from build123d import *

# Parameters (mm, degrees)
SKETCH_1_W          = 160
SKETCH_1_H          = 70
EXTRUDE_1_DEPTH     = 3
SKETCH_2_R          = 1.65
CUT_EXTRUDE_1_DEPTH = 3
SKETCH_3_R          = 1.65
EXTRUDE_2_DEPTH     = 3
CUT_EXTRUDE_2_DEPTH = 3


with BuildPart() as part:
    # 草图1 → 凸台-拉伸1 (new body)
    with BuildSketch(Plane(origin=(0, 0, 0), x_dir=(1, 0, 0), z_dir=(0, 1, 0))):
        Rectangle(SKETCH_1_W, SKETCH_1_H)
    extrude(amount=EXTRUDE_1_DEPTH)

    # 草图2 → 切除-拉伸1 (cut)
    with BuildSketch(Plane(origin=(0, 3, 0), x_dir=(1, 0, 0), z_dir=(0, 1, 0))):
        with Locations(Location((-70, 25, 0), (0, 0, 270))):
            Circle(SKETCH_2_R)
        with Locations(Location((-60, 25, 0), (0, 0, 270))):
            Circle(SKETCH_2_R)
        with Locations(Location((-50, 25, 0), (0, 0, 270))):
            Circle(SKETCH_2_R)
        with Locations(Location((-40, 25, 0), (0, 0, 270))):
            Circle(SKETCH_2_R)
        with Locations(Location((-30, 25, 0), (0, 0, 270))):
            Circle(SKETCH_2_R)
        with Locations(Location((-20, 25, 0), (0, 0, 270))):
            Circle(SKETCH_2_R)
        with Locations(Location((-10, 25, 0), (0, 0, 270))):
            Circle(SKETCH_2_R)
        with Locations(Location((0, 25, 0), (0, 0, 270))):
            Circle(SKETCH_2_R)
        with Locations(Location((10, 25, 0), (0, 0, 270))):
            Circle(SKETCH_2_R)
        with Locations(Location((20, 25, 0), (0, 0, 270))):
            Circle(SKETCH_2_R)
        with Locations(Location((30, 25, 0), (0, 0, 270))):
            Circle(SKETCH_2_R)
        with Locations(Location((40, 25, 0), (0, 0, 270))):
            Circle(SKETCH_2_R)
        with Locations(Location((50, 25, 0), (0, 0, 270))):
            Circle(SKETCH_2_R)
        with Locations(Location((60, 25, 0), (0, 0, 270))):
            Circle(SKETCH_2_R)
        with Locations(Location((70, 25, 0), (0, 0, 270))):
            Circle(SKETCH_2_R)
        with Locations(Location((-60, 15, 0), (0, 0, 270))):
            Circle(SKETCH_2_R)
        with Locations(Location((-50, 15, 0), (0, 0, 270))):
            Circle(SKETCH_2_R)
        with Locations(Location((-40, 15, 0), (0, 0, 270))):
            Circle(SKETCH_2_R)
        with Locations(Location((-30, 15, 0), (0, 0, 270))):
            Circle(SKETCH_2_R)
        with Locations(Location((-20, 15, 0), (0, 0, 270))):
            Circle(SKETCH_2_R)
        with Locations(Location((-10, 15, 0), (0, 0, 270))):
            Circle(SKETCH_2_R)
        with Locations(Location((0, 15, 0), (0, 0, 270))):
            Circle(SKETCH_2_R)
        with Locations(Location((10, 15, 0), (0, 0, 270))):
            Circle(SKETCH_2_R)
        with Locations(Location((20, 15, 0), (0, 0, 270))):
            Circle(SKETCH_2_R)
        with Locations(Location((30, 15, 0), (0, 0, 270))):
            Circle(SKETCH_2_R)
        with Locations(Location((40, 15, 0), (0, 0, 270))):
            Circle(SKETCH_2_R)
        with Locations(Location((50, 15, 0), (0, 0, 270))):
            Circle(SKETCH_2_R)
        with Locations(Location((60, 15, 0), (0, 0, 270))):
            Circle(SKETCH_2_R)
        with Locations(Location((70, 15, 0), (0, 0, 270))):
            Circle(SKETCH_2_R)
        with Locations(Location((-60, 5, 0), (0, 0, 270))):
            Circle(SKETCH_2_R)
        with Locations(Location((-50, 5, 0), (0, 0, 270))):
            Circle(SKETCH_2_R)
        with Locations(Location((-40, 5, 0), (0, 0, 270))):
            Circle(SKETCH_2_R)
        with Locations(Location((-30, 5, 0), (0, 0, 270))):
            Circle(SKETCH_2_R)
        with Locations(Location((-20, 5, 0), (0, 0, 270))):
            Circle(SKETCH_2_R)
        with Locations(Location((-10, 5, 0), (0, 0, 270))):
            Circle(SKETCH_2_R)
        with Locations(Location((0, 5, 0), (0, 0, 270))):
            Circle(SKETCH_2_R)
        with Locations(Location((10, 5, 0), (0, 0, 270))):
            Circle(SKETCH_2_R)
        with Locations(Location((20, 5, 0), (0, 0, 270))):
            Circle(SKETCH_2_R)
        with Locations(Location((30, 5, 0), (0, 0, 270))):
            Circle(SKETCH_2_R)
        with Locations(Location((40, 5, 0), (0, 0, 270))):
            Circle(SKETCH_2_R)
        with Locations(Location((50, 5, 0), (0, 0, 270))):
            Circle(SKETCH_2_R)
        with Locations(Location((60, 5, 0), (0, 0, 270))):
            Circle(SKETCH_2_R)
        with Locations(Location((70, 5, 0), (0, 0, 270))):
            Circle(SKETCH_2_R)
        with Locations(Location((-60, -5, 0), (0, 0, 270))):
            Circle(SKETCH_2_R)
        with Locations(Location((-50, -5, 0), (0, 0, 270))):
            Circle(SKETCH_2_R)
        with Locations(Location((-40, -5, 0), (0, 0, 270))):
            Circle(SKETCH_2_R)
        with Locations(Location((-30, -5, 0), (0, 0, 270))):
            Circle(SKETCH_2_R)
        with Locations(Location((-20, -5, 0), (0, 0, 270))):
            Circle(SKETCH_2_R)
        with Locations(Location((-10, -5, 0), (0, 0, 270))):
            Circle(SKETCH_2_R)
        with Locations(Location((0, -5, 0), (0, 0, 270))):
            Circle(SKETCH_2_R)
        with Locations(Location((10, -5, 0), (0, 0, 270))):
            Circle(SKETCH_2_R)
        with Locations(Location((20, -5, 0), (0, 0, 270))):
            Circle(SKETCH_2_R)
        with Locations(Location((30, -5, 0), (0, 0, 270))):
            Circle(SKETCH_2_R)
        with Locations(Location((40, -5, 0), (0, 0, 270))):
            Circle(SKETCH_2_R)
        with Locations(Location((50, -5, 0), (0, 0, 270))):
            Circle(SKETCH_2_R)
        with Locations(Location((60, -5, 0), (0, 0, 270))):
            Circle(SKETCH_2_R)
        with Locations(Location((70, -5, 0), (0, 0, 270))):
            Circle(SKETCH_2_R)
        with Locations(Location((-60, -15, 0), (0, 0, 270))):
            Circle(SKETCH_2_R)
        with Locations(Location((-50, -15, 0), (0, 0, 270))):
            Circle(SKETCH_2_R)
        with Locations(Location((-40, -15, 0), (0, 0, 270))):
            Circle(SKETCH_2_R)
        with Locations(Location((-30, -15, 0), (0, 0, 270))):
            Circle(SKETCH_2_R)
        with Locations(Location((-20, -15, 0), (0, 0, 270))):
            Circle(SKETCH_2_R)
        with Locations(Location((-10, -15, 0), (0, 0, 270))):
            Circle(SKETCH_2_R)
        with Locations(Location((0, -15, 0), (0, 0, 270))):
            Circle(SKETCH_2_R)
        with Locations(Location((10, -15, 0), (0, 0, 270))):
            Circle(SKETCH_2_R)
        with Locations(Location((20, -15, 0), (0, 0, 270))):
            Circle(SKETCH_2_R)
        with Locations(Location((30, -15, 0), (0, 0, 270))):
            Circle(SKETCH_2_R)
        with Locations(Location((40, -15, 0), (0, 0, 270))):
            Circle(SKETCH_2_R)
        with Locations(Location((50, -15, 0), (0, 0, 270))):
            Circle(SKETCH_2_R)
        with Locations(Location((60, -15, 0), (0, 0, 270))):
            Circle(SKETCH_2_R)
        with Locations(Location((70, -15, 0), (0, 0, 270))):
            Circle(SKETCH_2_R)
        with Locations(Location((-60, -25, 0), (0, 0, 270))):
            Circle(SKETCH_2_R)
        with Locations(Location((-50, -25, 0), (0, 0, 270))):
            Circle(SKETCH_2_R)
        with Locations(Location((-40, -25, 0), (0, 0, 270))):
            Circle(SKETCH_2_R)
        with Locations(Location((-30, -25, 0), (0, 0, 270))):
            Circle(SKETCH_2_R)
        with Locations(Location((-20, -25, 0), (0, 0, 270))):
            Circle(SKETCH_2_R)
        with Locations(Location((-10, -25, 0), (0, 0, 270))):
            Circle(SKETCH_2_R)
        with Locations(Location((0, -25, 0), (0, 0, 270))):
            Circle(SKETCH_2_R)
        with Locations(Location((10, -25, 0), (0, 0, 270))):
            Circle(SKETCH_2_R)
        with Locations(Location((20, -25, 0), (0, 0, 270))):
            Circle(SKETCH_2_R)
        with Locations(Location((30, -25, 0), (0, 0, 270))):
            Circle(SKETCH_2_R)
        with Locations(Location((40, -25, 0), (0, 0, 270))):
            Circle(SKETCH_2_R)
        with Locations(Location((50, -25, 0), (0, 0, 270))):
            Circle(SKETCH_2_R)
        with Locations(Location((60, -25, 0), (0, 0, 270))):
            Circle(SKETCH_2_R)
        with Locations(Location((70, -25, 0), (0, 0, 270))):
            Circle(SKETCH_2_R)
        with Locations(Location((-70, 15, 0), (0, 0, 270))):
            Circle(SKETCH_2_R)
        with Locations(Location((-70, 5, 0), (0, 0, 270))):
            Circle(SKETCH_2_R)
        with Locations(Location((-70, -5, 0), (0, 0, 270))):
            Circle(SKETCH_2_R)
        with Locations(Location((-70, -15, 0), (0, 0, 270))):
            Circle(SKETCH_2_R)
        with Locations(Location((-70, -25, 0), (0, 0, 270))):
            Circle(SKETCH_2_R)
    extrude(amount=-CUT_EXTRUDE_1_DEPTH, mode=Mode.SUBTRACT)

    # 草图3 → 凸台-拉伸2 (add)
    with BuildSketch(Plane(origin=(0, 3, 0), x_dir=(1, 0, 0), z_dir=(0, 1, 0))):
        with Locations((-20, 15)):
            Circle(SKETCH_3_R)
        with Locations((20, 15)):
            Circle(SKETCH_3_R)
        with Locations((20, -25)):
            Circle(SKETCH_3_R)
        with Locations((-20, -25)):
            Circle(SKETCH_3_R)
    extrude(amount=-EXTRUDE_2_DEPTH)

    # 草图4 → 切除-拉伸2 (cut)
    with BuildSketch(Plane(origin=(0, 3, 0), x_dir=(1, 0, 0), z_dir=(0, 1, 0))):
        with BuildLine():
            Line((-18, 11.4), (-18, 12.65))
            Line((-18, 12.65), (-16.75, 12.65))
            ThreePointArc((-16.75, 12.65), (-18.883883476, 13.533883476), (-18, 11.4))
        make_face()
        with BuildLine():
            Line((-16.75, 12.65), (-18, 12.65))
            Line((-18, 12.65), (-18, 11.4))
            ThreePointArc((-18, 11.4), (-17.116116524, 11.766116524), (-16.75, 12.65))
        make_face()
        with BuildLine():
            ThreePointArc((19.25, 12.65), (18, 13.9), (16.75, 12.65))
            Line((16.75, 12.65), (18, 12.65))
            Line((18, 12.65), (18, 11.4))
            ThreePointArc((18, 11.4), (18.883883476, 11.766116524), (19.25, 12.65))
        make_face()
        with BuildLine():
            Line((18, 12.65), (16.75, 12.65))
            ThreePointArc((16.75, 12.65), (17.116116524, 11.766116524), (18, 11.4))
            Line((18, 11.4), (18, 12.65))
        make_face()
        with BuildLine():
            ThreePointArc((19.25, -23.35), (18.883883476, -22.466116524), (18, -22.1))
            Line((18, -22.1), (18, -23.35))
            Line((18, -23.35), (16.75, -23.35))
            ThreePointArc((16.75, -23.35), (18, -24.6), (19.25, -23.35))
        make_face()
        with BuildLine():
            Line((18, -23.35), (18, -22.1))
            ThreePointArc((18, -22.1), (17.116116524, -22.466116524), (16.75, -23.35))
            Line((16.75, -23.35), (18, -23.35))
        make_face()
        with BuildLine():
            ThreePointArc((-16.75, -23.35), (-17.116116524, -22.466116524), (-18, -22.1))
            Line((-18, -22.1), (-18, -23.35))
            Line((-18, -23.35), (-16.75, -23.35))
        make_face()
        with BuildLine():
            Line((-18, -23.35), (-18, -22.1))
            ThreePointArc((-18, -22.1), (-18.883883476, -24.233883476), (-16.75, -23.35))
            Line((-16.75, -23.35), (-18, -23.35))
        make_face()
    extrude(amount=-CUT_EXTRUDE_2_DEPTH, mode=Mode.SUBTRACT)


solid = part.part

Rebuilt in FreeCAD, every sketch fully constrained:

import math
import FreeCAD as App
import Part
import Sketcher


def add_polygon(sketch, points):
    """Adds a closed chain of lines whose ends are joined by coincident constraints."""
    first, n = sketch.GeometryCount, len(points)
    for a, b in zip(points, points[1:] + points[:1]):
        sketch.addGeometry(Part.LineSegment(App.Vector(*a, 0), App.Vector(*b, 0)), False)
    for i in range(n):
        sketch.addConstraint(Sketcher.Constraint("Coincident", first + i, 2, first + (i + 1) % n, 1))

doc = App.newDocument("Part")
params = doc.addObject("Spreadsheet::Sheet", "Params")
for row, (alias, value) in enumerate([
    ("sketch1_width", "160 mm"),
    ("sketch1_height", "70 mm"),
    ("pad1_length", "3 mm"),
    ("sketch2_diameter", "3.3 mm"),
    ("pocket1_length", "3 mm"),
    ("sketch3_diameter", "3.3 mm"),
    ("pad2_length", "3 mm"),
    ("sketch4_radius", "1.25 mm"),
    ("pocket2_length", "3 mm"),
], start=1):
    params.set(f"A{row}", alias)
    params.set(f"B{row}", "=" + value)
    params.setAlias(f"B{row}", alias)

body = doc.addObject("PartDesign::Body", "Body")

sketch1 = body.newObject("Sketcher::SketchObject", "Sketch")
sketch1.AttachmentSupport = (doc.getObject("XZ_Plane"), [""])
sketch1.MapMode = "FlatFace"
add_polygon(sketch1, [(-80, -35), (-80, 35), (80, 35), (80, -35)])
sketch1.addConstraint([
    Sketcher.Constraint("Vertical", 0),
    Sketcher.Constraint("Horizontal", 1),
    Sketcher.Constraint("Vertical", 2),
    Sketcher.Constraint("Horizontal", 3),
    Sketcher.Constraint("Symmetric", 0, 2, 2, 2, -1, 1),
    Sketcher.Constraint("DistanceX", 1, 1, 1, 2, 160.0),
    Sketcher.Constraint("DistanceY", 0, 1, 0, 2, 70.0),
])
sketch1.setExpression("Constraints[9]", "Params.sketch1_width")
sketch1.setExpression("Constraints[10]", "Params.sketch1_height")
pad1 = body.newObject("PartDesign::Pad", "Pad")
pad1.Profile = sketch1
pad1.setExpression("Length", "Params.pad1_length")
pad1.Reversed = True

sketch2 = body.newObject("Sketcher::SketchObject", "Sketch001")
sketch2.AttachmentSupport = (doc.getObject("XZ_Plane"), [""])
sketch2.MapMode = "FlatFace"
sketch2.AttachmentOffset = App.Placement(App.Vector(0, 0, -3), App.Rotation())
sketch2.addGeometry([
    Part.Circle(App.Vector(-70, -25, 0), App.Vector(0, 0, 1), 1.6),
    Part.Circle(App.Vector(-60, -25, 0), App.Vector(0, 0, 1), 1.6),
    Part.Circle(App.Vector(-50, -25, 0), App.Vector(0, 0, 1), 1.6),
    Part.Circle(App.Vector(-40, -25, 0), App.Vector(0, 0, 1), 1.6),
    Part.Circle(App.Vector(-30, -25, 0), App.Vector(0, 0, 1), 1.6),
    Part.Circle(App.Vector(-20, -25, 0), App.Vector(0, 0, 1), 1.6),
    Part.Circle(App.Vector(-10, -25, 0), App.Vector(0, 0, 1), 1.6),
    Part.Circle(App.Vector(0, -25, 0), App.Vector(0, 0, 1), 1.6),
    Part.Circle(App.Vector(10, -25, 0), App.Vector(0, 0, 1), 1.6),
    Part.Circle(App.Vector(20, -25, 0), App.Vector(0, 0, 1), 1.6),
    Part.Circle(App.Vector(30, -25, 0), App.Vector(0, 0, 1), 1.6),
    Part.Circle(App.Vector(40, -25, 0), App.Vector(0, 0, 1), 1.6),
    Part.Circle(App.Vector(50, -25, 0), App.Vector(0, 0, 1), 1.6),
    Part.Circle(App.Vector(60, -25, 0), App.Vector(0, 0, 1), 1.6),
    Part.Circle(App.Vector(70, -25, 0), App.Vector(0, 0, 1), 1.6),
    Part.Circle(App.Vector(-60, -15, 0), App.Vector(0, 0, 1), 1.6),
    Part.Circle(App.Vector(-50, -15, 0), App.Vector(0, 0, 1), 1.6),
    Part.Circle(App.Vector(-40, -15, 0), App.Vector(0, 0, 1), 1.6),
    Part.Circle(App.Vector(-30, -15, 0), App.Vector(0, 0, 1), 1.6),
    Part.Circle(App.Vector(-20, -15, 0), App.Vector(0, 0, 1), 1.6),
    Part.Circle(App.Vector(-10, -15, 0), App.Vector(0, 0, 1), 1.6),
    Part.Circle(App.Vector(0, -15, 0), App.Vector(0, 0, 1), 1.6),
    Part.Circle(App.Vector(10, -15, 0), App.Vector(0, 0, 1), 1.6),
    Part.Circle(App.Vector(20, -15, 0), App.Vector(0, 0, 1), 1.6),
    Part.Circle(App.Vector(30, -15, 0), App.Vector(0, 0, 1), 1.6),
    Part.Circle(App.Vector(40, -15, 0), App.Vector(0, 0, 1), 1.6),
    Part.Circle(App.Vector(50, -15, 0), App.Vector(0, 0, 1), 1.6),
    Part.Circle(App.Vector(60, -15, 0), App.Vector(0, 0, 1), 1.6),
    Part.Circle(App.Vector(70, -15, 0), App.Vector(0, 0, 1), 1.6),
    Part.Circle(App.Vector(-60, -5, 0), App.Vector(0, 0, 1), 1.6),
    Part.Circle(App.Vector(-50, -5, 0), App.Vector(0, 0, 1), 1.6),
    Part.Circle(App.Vector(-40, -5, 0), App.Vector(0, 0, 1), 1.6),
    Part.Circle(App.Vector(-30, -5, 0), App.Vector(0, 0, 1), 1.6),
    Part.Circle(App.Vector(-20, -5, 0), App.Vector(0, 0, 1), 1.6),
    Part.Circle(App.Vector(-10, -5, 0), App.Vector(0, 0, 1), 1.6),
    Part.Circle(App.Vector(0, -5, 0), App.Vector(0, 0, 1), 1.6),
    Part.Circle(App.Vector(10, -5, 0), App.Vector(0, 0, 1), 1.6),
    Part.Circle(App.Vector(20, -5, 0), App.Vector(0, 0, 1), 1.6),
    Part.Circle(App.Vector(30, -5, 0), App.Vector(0, 0, 1), 1.6),
    Part.Circle(App.Vector(40, -5, 0), App.Vector(0, 0, 1), 1.6),
    Part.Circle(App.Vector(50, -5, 0), App.Vector(0, 0, 1), 1.6),
    Part.Circle(App.Vector(60, -5, 0), App.Vector(0, 0, 1), 1.6),
    Part.Circle(App.Vector(70, -5, 0), App.Vector(0, 0, 1), 1.6),
    Part.Circle(App.Vector(-60, 5, 0), App.Vector(0, 0, 1), 1.6),
    Part.Circle(App.Vector(-50, 5, 0), App.Vector(0, 0, 1), 1.6),
    Part.Circle(App.Vector(-40, 5, 0), App.Vector(0, 0, 1), 1.6),
    Part.Circle(App.Vector(-30, 5, 0), App.Vector(0, 0, 1), 1.6),
    Part.Circle(App.Vector(-20, 5, 0), App.Vector(0, 0, 1), 1.6),
    Part.Circle(App.Vector(-10, 5, 0), App.Vector(0, 0, 1), 1.6),
    Part.Circle(App.Vector(0, 5, 0), App.Vector(0, 0, 1), 1.6),
    Part.Circle(App.Vector(10, 5, 0), App.Vector(0, 0, 1), 1.6),
    Part.Circle(App.Vector(20, 5, 0), App.Vector(0, 0, 1), 1.6),
    Part.Circle(App.Vector(30, 5, 0), App.Vector(0, 0, 1), 1.6),
    Part.Circle(App.Vector(40, 5, 0), App.Vector(0, 0, 1), 1.6),
    Part.Circle(App.Vector(50, 5, 0), App.Vector(0, 0, 1), 1.6),
    Part.Circle(App.Vector(60, 5, 0), App.Vector(0, 0, 1), 1.6),
    Part.Circle(App.Vector(70, 5, 0), App.Vector(0, 0, 1), 1.6),
    Part.Circle(App.Vector(-60, 15, 0), App.Vector(0, 0, 1), 1.6),
    Part.Circle(App.Vector(-50, 15, 0), App.Vector(0, 0, 1), 1.6),
    Part.Circle(App.Vector(-40, 15, 0), App.Vector(0, 0, 1), 1.6),
    Part.Circle(App.Vector(-30, 15, 0), App.Vector(0, 0, 1), 1.6),
    Part.Circle(App.Vector(-20, 15, 0), App.Vector(0, 0, 1), 1.6),
    Part.Circle(App.Vector(-10, 15, 0), App.Vector(0, 0, 1), 1.6),
    Part.Circle(App.Vector(0, 15, 0), App.Vector(0, 0, 1), 1.6),
    Part.Circle(App.Vector(10, 15, 0), App.Vector(0, 0, 1), 1.6),
    Part.Circle(App.Vector(20, 15, 0), App.Vector(0, 0, 1), 1.6),
    Part.Circle(App.Vector(30, 15, 0), App.Vector(0, 0, 1), 1.6),
    Part.Circle(App.Vector(40, 15, 0), App.Vector(0, 0, 1), 1.6),
    Part.Circle(App.Vector(50, 15, 0), App.Vector(0, 0, 1), 1.6),
    Part.Circle(App.Vector(60, 15, 0), App.Vector(0, 0, 1), 1.6),
    Part.Circle(App.Vector(70, 15, 0), App.Vector(0, 0, 1), 1.6),
    Part.Circle(App.Vector(-60, 25, 0), App.Vector(0, 0, 1), 1.6),
    Part.Circle(App.Vector(-50, 25, 0), App.Vector(0, 0, 1), 1.6),
    Part.Circle(App.Vector(-40, 25, 0), App.Vector(0, 0, 1), 1.6),
    Part.Circle(App.Vector(-30, 25, 0), App.Vector(0, 0, 1), 1.6),
    Part.Circle(App.Vector(-20, 25, 0), App.Vector(0, 0, 1), 1.6),
    Part.Circle(App.Vector(-10, 25, 0), App.Vector(0, 0, 1), 1.6),
    Part.Circle(App.Vector(0, 25, 0), App.Vector(0, 0, 1), 1.6),
    Part.Circle(App.Vector(10, 25, 0), App.Vector(0, 0, 1), 1.6),
    Part.Circle(App.Vector(20, 25, 0), App.Vector(0, 0, 1), 1.6),
    Part.Circle(App.Vector(30, 25, 0), App.Vector(0, 0, 1), 1.6),
    Part.Circle(App.Vector(40, 25, 0), App.Vector(0, 0, 1), 1.6),
    Part.Circle(App.Vector(50, 25, 0), App.Vector(0, 0, 1), 1.6),
    Part.Circle(App.Vector(60, 25, 0), App.Vector(0, 0, 1), 1.6),
    Part.Circle(App.Vector(70, 25, 0), App.Vector(0, 0, 1), 1.6),
    Part.Circle(App.Vector(-70, -15, 0), App.Vector(0, 0, 1), 1.6),
    Part.Circle(App.Vector(-70, -5, 0), App.Vector(0, 0, 1), 1.6),
    Part.Circle(App.Vector(-70, 5, 0), App.Vector(0, 0, 1), 1.6),
    Part.Circle(App.Vector(-70, 15, 0), App.Vector(0, 0, 1), 1.6),
    Part.Circle(App.Vector(-70, 25, 0), App.Vector(0, 0, 1), 1.6),
], False)
sketch2.addConstraint([
    Sketcher.Constraint("Equal", 0, 1),
    Sketcher.Constraint("Equal", 1, 2),
    Sketcher.Constraint("Equal", 2, 3),
    Sketcher.Constraint("Equal", 3, 4),
    Sketcher.Constraint("Equal", 4, 5),
    Sketcher.Constraint("Equal", 5, 6),
    Sketcher.Constraint("Equal", 6, 7),
    Sketcher.Constraint("Equal", 7, 8),
    Sketcher.Constraint("Equal", 8, 9),
    Sketcher.Constraint("Equal", 9, 10),
    Sketcher.Constraint("Equal", 10, 11),
    Sketcher.Constraint("Equal", 11, 12),
    Sketcher.Constraint("Equal", 12, 13),
    Sketcher.Constraint("Equal", 13, 14),
    Sketcher.Constraint("Equal", 14, 15),
    Sketcher.Constraint("Equal", 15, 16),
    Sketcher.Constraint("Equal", 16, 17),
    Sketcher.Constraint("Equal", 17, 18),
    Sketcher.Constraint("Equal", 18, 19),
    Sketcher.Constraint("Equal", 19, 20),
    Sketcher.Constraint("Equal", 20, 21),
    Sketcher.Constraint("Equal", 21, 22),
    Sketcher.Constraint("Equal", 22, 23),
    Sketcher.Constraint("Equal", 23, 24),
    Sketcher.Constraint("Equal", 24, 25),
    Sketcher.Constraint("Equal", 25, 26),
    Sketcher.Constraint("Equal", 26, 27),
    Sketcher.Constraint("Equal", 27, 28),
    Sketcher.Constraint("Equal", 28, 29),
    Sketcher.Constraint("Equal", 29, 30),
    Sketcher.Constraint("Equal", 30, 31),
    Sketcher.Constraint("Equal", 31, 32),
    Sketcher.Constraint("Equal", 32, 33),
    Sketcher.Constraint("Equal", 33, 34),
    Sketcher.Constraint("Equal", 34, 35),
    Sketcher.Constraint("Equal", 35, 36),
    Sketcher.Constraint("Equal", 36, 37),
    Sketcher.Constraint("Equal", 37, 38),
    Sketcher.Constraint("Equal", 38, 39),
    Sketcher.Constraint("Equal", 39, 40),
    Sketcher.Constraint("Equal", 40, 41),
    Sketcher.Constraint("Equal", 41, 42),
    Sketcher.Constraint("Equal", 42, 43),
    Sketcher.Constraint("Equal", 43, 44),
    Sketcher.Constraint("Equal", 44, 45),
    Sketcher.Constraint("Equal", 45, 46),
    Sketcher.Constraint("Equal", 46, 47),
    Sketcher.Constraint("Equal", 47, 48),
    Sketcher.Constraint("Equal", 48, 49),
    Sketcher.Constraint("Equal", 49, 50),
    Sketcher.Constraint("Equal", 50, 51),
    Sketcher.Constraint("Equal", 51, 52),
    Sketcher.Constraint("Equal", 52, 53),
    Sketcher.Constraint("Equal", 53, 54),
    Sketcher.Constraint("Equal", 54, 55),
    Sketcher.Constraint("Equal", 55, 56),
    Sketcher.Constraint("Equal", 56, 57),
    Sketcher.Constraint("Equal", 57, 58),
    Sketcher.Constraint("Equal", 58, 59),
    Sketcher.Constraint("Equal", 59, 60),
    Sketcher.Constraint("Equal", 60, 61),
    Sketcher.Constraint("Equal", 61, 62),
    Sketcher.Constraint("Equal", 62, 63),
    Sketcher.Constraint("Equal", 63, 64),
    Sketcher.Constraint("Equal", 64, 65),
    Sketcher.Constraint("Equal", 65, 66),
    Sketcher.Constraint("Equal", 66, 67),
    Sketcher.Constraint("Equal", 67, 68),
    Sketcher.Constraint("Equal", 68, 69),
    Sketcher.Constraint("Equal", 69, 70),
    Sketcher.Constraint("Equal", 70, 71),
    Sketcher.Constraint("Equal", 71, 72),
    Sketcher.Constraint("Equal", 72, 73),
    Sketcher.Constraint("Equal", 73, 74),
    Sketcher.Constraint("Equal", 74, 75),
    Sketcher.Constraint("Equal", 75, 76),
    Sketcher.Constraint("Equal", 76, 77),
    Sketcher.Constraint("Equal", 77, 78),
    Sketcher.Constraint("Equal", 78, 79),
    Sketcher.Constraint("Equal", 79, 80),
    Sketcher.Constraint("Equal", 80, 81),
    Sketcher.Constraint("Equal", 81, 82),
    Sketcher.Constraint("Equal", 82, 83),
    Sketcher.Constraint("Equal", 83, 84),
    Sketcher.Constraint("Equal", 84, 85),
    Sketcher.Constraint("Equal", 85, 86),
    Sketcher.Constraint("Equal", 86, 87),
    Sketcher.Constraint("Equal", 87, 88),
    Sketcher.Constraint("Equal", 88, 89),
    Sketcher.Constraint("Symmetric", 41, 3, 43, 3, -1, 1),
    Sketcher.Constraint("Symmetric", 40, 3, 44, 3, -1, 1),
    Sketcher.Constraint("Symmetric", 39, 3, 45, 3, -1, 1),
    Sketcher.Constraint("Symmetric", 38, 3, 46, 3, -1, 1),
    Sketcher.Constraint("Symmetric", 37, 3, 47, 3, -1, 1),
    Sketcher.Constraint("Symmetric", 36, 3, 48, 3, -1, 1),
    Sketcher.Constraint("Symmetric", 35, 3, 49, 3, -1, 1),
    Sketcher.Constraint("Symmetric", 34, 3, 50, 3, -1, 1),
    Sketcher.Constraint("Symmetric", 33, 3, 51, 3, -1, 1),
    Sketcher.Constraint("Symmetric", 32, 3, 52, 3, -1, 1),
    Sketcher.Constraint("Symmetric", 31, 3, 53, 3, -1, 1),
    Sketcher.Constraint("Symmetric", 30, 3, 54, 3, -1, 1),
    Sketcher.Constraint("Symmetric", 29, 3, 55, 3, -1, 1),
    Sketcher.Constraint("Symmetric", 27, 3, 57, 3, -1, 1),
    Sketcher.Constraint("Symmetric", 26, 3, 58, 3, -1, 1),
    Sketcher.Constraint("Symmetric", 25, 3, 59, 3, -1, 1),
    Sketcher.Constraint("Symmetric", 24, 3, 60, 3, -1, 1),
    Sketcher.Constraint("Symmetric", 23, 3, 61, 3, -1, 1),
    Sketcher.Constraint("Symmetric", 22, 3, 62, 3, -1, 1),
    Sketcher.Constraint("Symmetric", 21, 3, 63, 3, -1, 1),
    Sketcher.Constraint("Symmetric", 20, 3, 64, 3, -1, 1),
    Sketcher.Constraint("Symmetric", 19, 3, 65, 3, -1, 1),
    Sketcher.Constraint("Symmetric", 18, 3, 66, 3, -1, 1),
    Sketcher.Constraint("Symmetric", 17, 3, 67, 3, -1, 1),
    Sketcher.Constraint("Symmetric", 16, 3, 68, 3, -1, 1),
    Sketcher.Constraint("Symmetric", 15, 3, 69, 3, -1, 1),
    Sketcher.Constraint("Symmetric", 13, 3, 71, 3, -1, 1),
    Sketcher.Constraint("Symmetric", 12, 3, 72, 3, -1, 1),
    Sketcher.Constraint("Symmetric", 11, 3, 73, 3, -1, 1),
    Sketcher.Constraint("Symmetric", 10, 3, 74, 3, -1, 1),
    Sketcher.Constraint("Symmetric", 9, 3, 75, 3, -1, 1),
    Sketcher.Constraint("Symmetric", 8, 3, 76, 3, -1, 1),
    Sketcher.Constraint("Symmetric", 7, 3, 77, 3, -1, 1),
    Sketcher.Constraint("Symmetric", 6, 3, 78, 3, -1, 1),
    Sketcher.Constraint("Symmetric", 5, 3, 79, 3, -1, 1),
    Sketcher.Constraint("Symmetric", 4, 3, 80, 3, -1, 1),
    Sketcher.Constraint("Symmetric", 3, 3, 81, 3, -1, 1),
    Sketcher.Constraint("Symmetric", 2, 3, 82, 3, -1, 1),
    Sketcher.Constraint("Symmetric", 1, 3, 83, 3, -1, 1),
    Sketcher.Constraint("Symmetric", 0, 3, 84, 3, -1, 1),
    Sketcher.Constraint("Symmetric", 70, 3, 85, 3, -1, 1),
    Sketcher.Constraint("Symmetric", 56, 3, 86, 3, -1, 1),
    Sketcher.Constraint("Symmetric", 42, 3, 87, 3, -1, 1),
    Sketcher.Constraint("Symmetric", 28, 3, 88, 3, -1, 1),
    Sketcher.Constraint("Symmetric", 14, 3, 89, 3, -1, 1),
    Sketcher.Constraint("Symmetric", 6, 3, 8, 3, -2),
    Sketcher.Constraint("Symmetric", 5, 3, 9, 3, -2),
    Sketcher.Constraint("Symmetric", 4, 3, 10, 3, -2),
    Sketcher.Constraint("Symmetric", 3, 3, 11, 3, -2),
    Sketcher.Constraint("Symmetric", 2, 3, 12, 3, -2),
    Sketcher.Constraint("Symmetric", 1, 3, 13, 3, -2),
    Sketcher.Constraint("Symmetric", 0, 3, 14, 3, -2),
    Sketcher.Constraint("Symmetric", 20, 3, 22, 3, -2),
    Sketcher.Constraint("Symmetric", 19, 3, 23, 3, -2),
    Sketcher.Constraint("Symmetric", 18, 3, 24, 3, -2),
    Sketcher.Constraint("Symmetric", 17, 3, 25, 3, -2),
    Sketcher.Constraint("Symmetric", 16, 3, 26, 3, -2),
    Sketcher.Constraint("Symmetric", 15, 3, 27, 3, -2),
    Sketcher.Constraint("Symmetric", 34, 3, 36, 3, -2),
    Sketcher.Constraint("Symmetric", 33, 3, 37, 3, -2),
    Sketcher.Constraint("Symmetric", 32, 3, 38, 3, -2),
    Sketcher.Constraint("Symmetric", 31, 3, 39, 3, -2),
    Sketcher.Constraint("Symmetric", 30, 3, 40, 3, -2),
    Sketcher.Constraint("Symmetric", 29, 3, 41, 3, -2),
    Sketcher.Constraint("Symmetric", 28, 3, 85, 3, -2),
    Sketcher.Constraint("Symmetric", 42, 3, 86, 3, -2),
    Sketcher.Constraint("PointOnObject", 7, 3, -2),
    Sketcher.Constraint("PointOnObject", 21, 3, -2),
    Sketcher.Constraint("PointOnObject", 35, 3, -2),
    Sketcher.Constraint("Horizontal", 0, 3, 1, 3),
    Sketcher.Constraint("Horizontal", 1, 3, 2, 3),
    Sketcher.Constraint("Horizontal", 2, 3, 3, 3),
    Sketcher.Constraint("Horizontal", 3, 3, 4, 3),
    Sketcher.Constraint("Horizontal", 4, 3, 5, 3),
    Sketcher.Constraint("Horizontal", 5, 3, 6, 3),
    Sketcher.Constraint("Horizontal", 6, 3, 7, 3),
    Sketcher.Constraint("Horizontal", 15, 3, 16, 3),
    Sketcher.Constraint("Horizontal", 16, 3, 17, 3),
    Sketcher.Constraint("Horizontal", 17, 3, 18, 3),
    Sketcher.Constraint("Horizontal", 18, 3, 19, 3),
    Sketcher.Constraint("Horizontal", 19, 3, 20, 3),
    Sketcher.Constraint("Horizontal", 20, 3, 21, 3),
    Sketcher.Constraint("Horizontal", 27, 3, 28, 3),
    Sketcher.Constraint("Horizontal", 29, 3, 30, 3),
    Sketcher.Constraint("Horizontal", 30, 3, 31, 3),
    Sketcher.Constraint("Horizontal", 31, 3, 32, 3),
    Sketcher.Constraint("Horizontal", 32, 3, 33, 3),
    Sketcher.Constraint("Horizontal", 33, 3, 34, 3),
    Sketcher.Constraint("Horizontal", 34, 3, 35, 3),
    Sketcher.Constraint("Horizontal", 41, 3, 42, 3),
    Sketcher.Constraint("Vertical", 1, 3, 15, 3),
    Sketcher.Constraint("Vertical", 2, 3, 16, 3),
    Sketcher.Constraint("Vertical", 3, 3, 17, 3),
    Sketcher.Constraint("Vertical", 4, 3, 18, 3),
    Sketcher.Constraint("Vertical", 5, 3, 19, 3),
    Sketcher.Constraint("Vertical", 6, 3, 20, 3),
    Sketcher.Constraint("Vertical", 14, 3, 28, 3),
    Sketcher.Constraint("Vertical", 15, 3, 29, 3),
    Sketcher.Constraint("Vertical", 16, 3, 30, 3),
    Sketcher.Constraint("Vertical", 17, 3, 31, 3),
    Sketcher.Constraint("Vertical", 18, 3, 32, 3),
    Sketcher.Constraint("Vertical", 19, 3, 33, 3),
    Sketcher.Constraint("Vertical", 20, 3, 34, 3),
    Sketcher.Constraint("Vertical", 28, 3, 42, 3),
    Sketcher.Constraint("Diameter", 0, 3.3),
    Sketcher.Constraint("DistanceX", 0, 3, -1, 1, 70.0),
    Sketcher.Constraint("DistanceY", 0, 3, -1, 1, 25.0),
    Sketcher.Constraint("DistanceX", 1, 3, -1, 1, 60.0),
    Sketcher.Constraint("DistanceX", 2, 3, -1, 1, 50.0),
    Sketcher.Constraint("DistanceX", 3, 3, -1, 1, 40.0),
    Sketcher.Constraint("DistanceX", 4, 3, -1, 1, 30.0),
    Sketcher.Constraint("DistanceX", 5, 3, -1, 1, 20.0),
    Sketcher.Constraint("DistanceX", 6, 3, -1, 1, 10.0),
    Sketcher.Constraint("DistanceY", 15, 3, -1, 1, 15.0),
    Sketcher.Constraint("DistanceY", 29, 3, -1, 1, 5.0),
])
sketch2.setExpression("Constraints[193]", "Params.sketch2_diameter")
pocket1 = body.newObject("PartDesign::Pocket", "Pocket")
pocket1.Profile = sketch2
pocket1.setExpression("Length", "Params.pocket1_length")
pocket1.Reversed = True

sketch3 = body.newObject("Sketcher::SketchObject", "Sketch002")
sketch3.AttachmentSupport = (doc.getObject("XZ_Plane"), [""])
sketch3.MapMode = "FlatFace"
sketch3.AttachmentOffset = App.Placement(App.Vector(0, 0, -3), App.Rotation())
sketch3.addGeometry([
    Part.Circle(App.Vector(-20, -15, 0), App.Vector(0, 0, 1), 1.6),
    Part.Circle(App.Vector(20, -15, 0), App.Vector(0, 0, 1), 1.6),
    Part.Circle(App.Vector(20, 25, 0), App.Vector(0, 0, 1), 1.6),
    Part.Circle(App.Vector(-20, 25, 0), App.Vector(0, 0, 1), 1.6),
], False)
sketch3.addConstraint([
    Sketcher.Constraint("Equal", 0, 1),
    Sketcher.Constraint("Equal", 1, 2),
    Sketcher.Constraint("Equal", 2, 3),
    Sketcher.Constraint("Symmetric", 0, 3, 1, 3, -2),
    Sketcher.Constraint("Symmetric", 2, 3, 3, 3, -2),
    Sketcher.Constraint("Vertical", 1, 3, 2, 3),
    Sketcher.Constraint("Diameter", 0, 3.3),
    Sketcher.Constraint("DistanceX", 0, 3, -1, 1, 20.0),
    Sketcher.Constraint("DistanceY", 0, 3, -1, 1, 15.0),
    Sketcher.Constraint("DistanceY", -1, 1, 2, 3, 25.0),
])
sketch3.setExpression("Constraints[6]", "Params.sketch3_diameter")
pad2 = body.newObject("PartDesign::Pad", "Pad001")
pad2.Profile = sketch3
pad2.setExpression("Length", "Params.pad2_length")

sketch4 = body.newObject("Sketcher::SketchObject", "Sketch003")
sketch4.AttachmentSupport = (doc.getObject("XZ_Plane"), [""])
sketch4.MapMode = "FlatFace"
sketch4.AttachmentOffset = App.Placement(App.Vector(0, 0, -3), App.Rotation())
sketch4.addGeometry([
    Part.ArcOfCircle(Part.Circle(App.Vector(-18, -12.7, 0), App.Vector(0, 0, 1), 1.2), math.radians(90), math.radians(360)),
    Part.ArcOfCircle(Part.Circle(App.Vector(-18, -12.7, 0), App.Vector(0, 0, 1), 1.3), math.radians(0), math.radians(90)),
    Part.ArcOfCircle(Part.Circle(App.Vector(18, -12.7, 0), App.Vector(0, 0, 1), 1.2), math.radians(180), math.radians(360)),
    Part.ArcOfCircle(Part.Circle(App.Vector(18, -12.7, 0), App.Vector(0, 0, 1), 1.3), math.radians(90), math.radians(180)),
    Part.ArcOfCircle(Part.Circle(App.Vector(18, -12.7, 0), App.Vector(0, 0, 1), 1.3), math.radians(0), math.radians(90)),
    Part.ArcOfCircle(Part.Circle(App.Vector(18, 23.4, 0), App.Vector(0, 0, 1), 1.3), math.radians(-90), math.radians(0)),
    Part.ArcOfCircle(Part.Circle(App.Vector(18, 23.4, 0), App.Vector(0, 0, 1), 1.3), math.radians(-180), math.radians(-90)),
    Part.ArcOfCircle(Part.Circle(App.Vector(18, 23.4, 0), App.Vector(0, 0, 1), 1.2), math.radians(0), math.radians(180)),
    Part.ArcOfCircle(Part.Circle(App.Vector(-18, 23.4, 0), App.Vector(0, 0, 1), 1.3), math.radians(-90), math.radians(0)),
    Part.ArcOfCircle(Part.Circle(App.Vector(-18, 23.4, 0), App.Vector(0, 0, 1), 1.2), math.radians(0), math.radians(270)),
], False)
sketch4.addConstraint([
    Sketcher.Constraint("Tangent", 0, 1, 1, 2),
    Sketcher.Constraint("Coincident", 1, 1, 0, 2),
    Sketcher.Constraint("Tangent", 2, 1, 3, 2),
    Sketcher.Constraint("Tangent", 3, 1, 4, 2),
    Sketcher.Constraint("Tangent", 4, 1, 2, 2),
    Sketcher.Constraint("Tangent", 5, 1, 6, 2),
    Sketcher.Constraint("Tangent", 6, 1, 7, 2),
    Sketcher.Constraint("Tangent", 7, 1, 5, 2),
    Sketcher.Constraint("Tangent", 8, 1, 9, 2),
    Sketcher.Constraint("Coincident", 9, 1, 8, 2),
    Sketcher.Constraint("Equal", 1, 2),
    Sketcher.Constraint("Equal", 4, 5),
    Sketcher.Constraint("Equal", 7, 8),
    Sketcher.Constraint("Symmetric", 0, 3, 2, 3, -2),
    Sketcher.Constraint("Symmetric", 5, 3, 8, 3, -2),
    Sketcher.Constraint("Horizontal", 4, 3, 1, 1),
    Sketcher.Constraint("Horizontal", 1, 1, 2, 1),
    Sketcher.Constraint("Horizontal", 2, 1, 4, 1),
    Sketcher.Constraint("Horizontal", 9, 3, 6, 1),
    Sketcher.Constraint("Horizontal", 6, 1, 7, 1),
    Sketcher.Constraint("Horizontal", 7, 1, 9, 1),
    Sketcher.Constraint("Vertical", 4, 3, 5, 3),
    Sketcher.Constraint("Vertical", 9, 3, 0, 1),
    Sketcher.Constraint("Vertical", 7, 3, 3, 1),
    Sketcher.Constraint("Vertical", 3, 1, 5, 1),
    Sketcher.Constraint("Vertical", 0, 1, 8, 1),
    Sketcher.Constraint("Radius", 0, 1.25),
    Sketcher.Constraint("DistanceX", 0, 3, -1, 1, 18.0),
    Sketcher.Constraint("DistanceY", 2, 3, 5, 3, 36.0),
    Sketcher.Constraint("DistanceY", 0, 1, -1, 1, 11.4),
])
sketch4.setExpression("Constraints[26]", "Params.sketch4_radius")
pocket2 = body.newObject("PartDesign::Pocket", "Pocket001")
pocket2.Profile = sketch4
pocket2.setExpression("Length", "Params.pocket2_length")
pocket2.Reversed = True

doc.recompute()
